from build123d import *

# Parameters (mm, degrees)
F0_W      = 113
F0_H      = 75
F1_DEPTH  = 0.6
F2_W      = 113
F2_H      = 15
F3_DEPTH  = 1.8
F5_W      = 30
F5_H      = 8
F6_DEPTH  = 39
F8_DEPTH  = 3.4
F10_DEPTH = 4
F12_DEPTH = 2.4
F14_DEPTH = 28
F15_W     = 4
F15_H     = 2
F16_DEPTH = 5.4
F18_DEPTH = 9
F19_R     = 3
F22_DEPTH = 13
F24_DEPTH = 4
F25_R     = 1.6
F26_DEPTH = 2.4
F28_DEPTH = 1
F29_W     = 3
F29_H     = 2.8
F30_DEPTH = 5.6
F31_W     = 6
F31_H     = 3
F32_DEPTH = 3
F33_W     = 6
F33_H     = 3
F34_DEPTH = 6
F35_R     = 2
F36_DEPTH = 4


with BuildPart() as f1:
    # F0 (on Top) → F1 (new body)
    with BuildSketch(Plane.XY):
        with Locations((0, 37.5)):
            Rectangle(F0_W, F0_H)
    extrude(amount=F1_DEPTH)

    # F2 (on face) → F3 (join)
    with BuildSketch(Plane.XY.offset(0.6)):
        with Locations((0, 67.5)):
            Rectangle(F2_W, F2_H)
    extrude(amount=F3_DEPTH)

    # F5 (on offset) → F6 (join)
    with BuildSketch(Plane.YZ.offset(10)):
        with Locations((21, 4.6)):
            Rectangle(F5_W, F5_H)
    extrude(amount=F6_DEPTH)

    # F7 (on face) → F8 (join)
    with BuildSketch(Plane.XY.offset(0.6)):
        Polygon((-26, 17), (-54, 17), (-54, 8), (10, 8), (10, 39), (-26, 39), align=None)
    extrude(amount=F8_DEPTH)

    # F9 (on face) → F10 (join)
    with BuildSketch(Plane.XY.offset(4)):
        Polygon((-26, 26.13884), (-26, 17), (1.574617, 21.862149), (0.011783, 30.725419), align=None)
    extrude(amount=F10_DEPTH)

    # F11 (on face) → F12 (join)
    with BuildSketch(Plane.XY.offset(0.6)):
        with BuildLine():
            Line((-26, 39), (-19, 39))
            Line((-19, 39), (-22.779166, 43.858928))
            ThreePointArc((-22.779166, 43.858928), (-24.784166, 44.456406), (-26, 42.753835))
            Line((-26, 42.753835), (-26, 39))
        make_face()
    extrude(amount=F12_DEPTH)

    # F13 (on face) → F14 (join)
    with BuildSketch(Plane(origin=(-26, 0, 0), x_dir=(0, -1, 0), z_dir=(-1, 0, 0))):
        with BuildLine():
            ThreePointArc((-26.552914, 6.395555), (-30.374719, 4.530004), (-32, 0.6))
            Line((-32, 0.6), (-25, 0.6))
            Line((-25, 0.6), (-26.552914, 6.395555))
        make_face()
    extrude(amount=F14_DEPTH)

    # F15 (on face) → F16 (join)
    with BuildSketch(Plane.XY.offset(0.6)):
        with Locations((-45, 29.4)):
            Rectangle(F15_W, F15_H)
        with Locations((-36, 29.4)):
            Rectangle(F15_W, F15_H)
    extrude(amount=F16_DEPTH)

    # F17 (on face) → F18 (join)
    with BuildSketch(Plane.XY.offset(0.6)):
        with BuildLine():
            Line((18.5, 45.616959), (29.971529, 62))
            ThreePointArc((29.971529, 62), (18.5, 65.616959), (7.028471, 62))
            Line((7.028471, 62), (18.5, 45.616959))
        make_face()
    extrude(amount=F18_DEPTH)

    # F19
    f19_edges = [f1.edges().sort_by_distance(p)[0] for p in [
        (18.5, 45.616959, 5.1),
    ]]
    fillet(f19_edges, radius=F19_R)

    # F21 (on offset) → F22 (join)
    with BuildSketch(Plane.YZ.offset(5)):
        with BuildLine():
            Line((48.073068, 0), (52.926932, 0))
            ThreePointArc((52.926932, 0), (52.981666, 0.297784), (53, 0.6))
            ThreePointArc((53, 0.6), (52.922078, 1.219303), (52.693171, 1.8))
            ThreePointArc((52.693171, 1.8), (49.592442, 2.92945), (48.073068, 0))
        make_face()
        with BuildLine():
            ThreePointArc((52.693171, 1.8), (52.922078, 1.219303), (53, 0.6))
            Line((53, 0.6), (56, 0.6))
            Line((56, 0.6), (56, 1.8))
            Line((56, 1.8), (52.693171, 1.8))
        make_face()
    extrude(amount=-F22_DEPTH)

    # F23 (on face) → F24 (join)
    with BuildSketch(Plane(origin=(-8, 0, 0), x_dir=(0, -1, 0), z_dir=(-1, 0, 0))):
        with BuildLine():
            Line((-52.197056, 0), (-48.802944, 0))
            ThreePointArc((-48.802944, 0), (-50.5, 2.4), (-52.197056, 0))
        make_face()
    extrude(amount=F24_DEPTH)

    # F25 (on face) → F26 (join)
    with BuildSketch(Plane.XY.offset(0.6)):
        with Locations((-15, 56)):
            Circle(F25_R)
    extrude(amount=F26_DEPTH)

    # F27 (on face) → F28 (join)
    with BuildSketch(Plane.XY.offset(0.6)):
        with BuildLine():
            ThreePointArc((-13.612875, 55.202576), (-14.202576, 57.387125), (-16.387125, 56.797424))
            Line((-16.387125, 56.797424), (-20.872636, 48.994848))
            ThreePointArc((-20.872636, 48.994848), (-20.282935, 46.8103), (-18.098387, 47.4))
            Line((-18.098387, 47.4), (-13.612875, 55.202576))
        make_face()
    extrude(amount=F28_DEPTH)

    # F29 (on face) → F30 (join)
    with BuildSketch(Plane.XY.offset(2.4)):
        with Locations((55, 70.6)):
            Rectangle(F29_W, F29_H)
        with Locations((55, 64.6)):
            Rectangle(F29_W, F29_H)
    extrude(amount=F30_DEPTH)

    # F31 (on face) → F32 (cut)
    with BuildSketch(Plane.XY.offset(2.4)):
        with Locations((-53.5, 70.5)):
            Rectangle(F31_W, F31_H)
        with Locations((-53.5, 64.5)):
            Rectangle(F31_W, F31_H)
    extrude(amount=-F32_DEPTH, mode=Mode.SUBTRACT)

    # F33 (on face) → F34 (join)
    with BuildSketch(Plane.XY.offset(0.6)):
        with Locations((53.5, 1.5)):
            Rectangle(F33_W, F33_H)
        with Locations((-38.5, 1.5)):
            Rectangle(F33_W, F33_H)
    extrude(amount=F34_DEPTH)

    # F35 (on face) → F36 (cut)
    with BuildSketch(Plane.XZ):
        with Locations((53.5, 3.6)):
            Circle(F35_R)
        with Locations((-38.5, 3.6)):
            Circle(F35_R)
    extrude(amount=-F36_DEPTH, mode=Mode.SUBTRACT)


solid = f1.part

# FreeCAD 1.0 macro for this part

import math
import FreeCAD as App
import Part
import Sketcher
Q = App.Units.Quantity


def edges_at(feature, points):
    """Names of the edges that pass closest to the given points."""
    edges = feature.Shape.Edges
    near = lambda p: min(range(len(edges)), key=lambda i: edges[i].distToShape(Part.Vertex(*p))[0])
    return sorted({f"Edge{near(p) + 1}" for p in points})


def add_polygon(sketch, points):
    """Adds a closed chain of lines whose ends are joined by coincident constraints."""
    first, n = sketch.GeometryCount, len(points)
    for a, b in zip(points, points[1:] + points[:1]):
        sketch.addGeometry(Part.LineSegment(App.Vector(*a, 0), App.Vector(*b, 0)), False)
    for i in range(n):
        sketch.addConstraint(Sketcher.Constraint("Coincident", first + i, 2, first + (i + 1) % n, 1))

doc = App.newDocument("Part")
body = doc.addObject("PartDesign::Body", "Body")

# Sketch on XY plane
sketch1 = doc.addObject("Sketcher::SketchObject", "Sketch")
body.addObject(sketch1)
sketch1.AttachmentSupport = (doc.XY_Plane, [""])
sketch1.MapMode = "FlatFace"
add_polygon(sketch1, [(-56.5, 75), (-56.5, 0), (56.5, 0), (56.5, 75)])  # lines 0-3
sketch1.addConstraint([
    Sketcher.Constraint("Vertical", 0),
    Sketcher.Constraint("Horizontal", 1),
    Sketcher.Constraint("Vertical", 2),
    Sketcher.Constraint("Horizontal", 3),
    Sketcher.Constraint("Symmetric", 0, 2, 1, 2, -1, 1),
    Sketcher.Constraint("DistanceX", 1, 1, 1, 2, 113.0),
    Sketcher.Constraint("DistanceY", 0, 2, 0, 1, 75.0),
])
pad1 = doc.addObject("PartDesign::Pad", "Pad")
body.addObject(pad1)
pad1.Profile = sketch1
pad1.Length = 0.6

# Sketch on XY plane
sketch2 = doc.addObject("Sketcher::SketchObject", "Sketch001")
body.addObject(sketch2)
sketch2.AttachmentSupport = (doc.XY_Plane, [""])
sketch2.MapMode = "FlatFace"
sketch2.AttachmentOffset = App.Placement(App.Vector(0, 0, 0.6), App.Rotation())
add_polygon(sketch2, [(-56.5, 75), (-56.5, 60), (56.5, 60), (56.5, 75)])  # lines 0-3
sketch2.addConstraint([
    Sketcher.Constraint("Vertical", 0),
    Sketcher.Constraint("Horizontal", 1),
    Sketcher.Constraint("Vertical", 2),
    Sketcher.Constraint("Horizontal", 3),
    Sketcher.Constraint("DistanceX", 1, 1, 1, 2, 113.0),
    Sketcher.Constraint("DistanceY", 0, 2, 0, 1, 15.0),
    Sketcher.Constraint("DistanceY", -1, 1, 0, 2, 60.0),
    Sketcher.Constraint("DistanceX", 0, 2, -1, 1, 56.5),
])
pad2 = doc.addObject("PartDesign::Pad", "Pad001")
body.addObject(pad2)
pad2.Profile = sketch2
pad2.Length = 1.8

# Sketch on YZ plane
sketch3 = doc.addObject("Sketcher::SketchObject", "Sketch002")
body.addObject(sketch3)
sketch3.AttachmentSupport = (doc.YZ_Plane, [""])
sketch3.MapMode = "FlatFace"
sketch3.AttachmentOffset = App.Placement(App.Vector(0, 0, 10), App.Rotation())
add_polygon(sketch3, [(6, 8.6), (6, 0.6), (36, 0.6), (36, 8.6)])  # lines 0-3
sketch3.addConstraint([
    Sketcher.Constraint("Vertical", 0),
    Sketcher.Constraint("Horizontal", 1),
    Sketcher.Constraint("Vertical", 2),
    Sketcher.Constraint("Horizontal", 3),
    Sketcher.Constraint("DistanceX", 1, 1, 1, 2, 30.0),
    Sketcher.Constraint("DistanceY", 0, 2, 0, 1, 8.0),
    Sketcher.Constraint("DistanceX", -1, 1, 0, 2, 6.0),
    Sketcher.Constraint("DistanceY", -1, 1, 0, 2, 0.6),
])
pad3 = doc.addObject("PartDesign::Pad", "Pad002")
body.addObject(pad3)
pad3.Profile = sketch3
pad3.Length = 39

# Sketch on XY plane
sketch4 = doc.addObject("Sketcher::SketchObject", "Sketch003")
body.addObject(sketch4)
sketch4.AttachmentSupport = (doc.XY_Plane, [""])
sketch4.MapMode = "FlatFace"
sketch4.AttachmentOffset = App.Placement(App.Vector(0, 0, 0.6), App.Rotation())
add_polygon(sketch4, [(-26, 17), (-54, 17), (-54, 8), (10, 8), (10, 39), (-26, 39)])  # lines 0-5
sketch4.addConstraint([
    Sketcher.Constraint("Horizontal", 0),
    Sketcher.Constraint("Vertical", 1),
    Sketcher.Constraint("Horizontal", 2),
    Sketcher.Constraint("Vertical", 3),
    Sketcher.Constraint("Horizontal", 4),
    Sketcher.Constraint("Vertical", 5),
    Sketcher.Constraint("DistanceX", 0, 2, 0, 1, 28.0),
    Sketcher.Constraint("DistanceX", 2, 1, 2, 2, 64.0),
    Sketcher.Constraint("DistanceY", 1, 2, 1, 1, 9.0),
    Sketcher.Constraint("DistanceY", 3, 1, 3, 2, 31.0),
    Sketcher.Constraint("DistanceX", 0, 2, -1, 1, 54.0),
    Sketcher.Constraint("DistanceY", -1, 1, 0, 2, 17.0),
])
pad4 = doc.addObject("PartDesign::Pad", "Pad003")
body.addObject(pad4)
pad4.Profile = sketch4
pad4.Length = 3.4

# Sketch on XY plane
sketch5 = doc.addObject("Sketcher::SketchObject", "Sketch004")
body.addObject(sketch5)
sketch5.AttachmentSupport = (doc.XY_Plane, [""])
sketch5.MapMode = "FlatFace"
sketch5.AttachmentOffset = App.Placement(App.Vector(0, 0, 4), App.Rotation())
add_polygon(sketch5, [(-26, 26.13884), (-26, 17), (1.574617, 21.862149), (0.011783, 30.725419)])  # lines 0-3
sketch5.addConstraint([
    Sketcher.Constraint("Vertical", 0),
    Sketcher.Constraint("Perpendicular", 1, 2),
    Sketcher.Constraint("Perpendicular", 2, 3),
    Sketcher.Constraint("Angle", 1, Q("10 deg")),
    Sketcher.Constraint("Distance", 1, 28.0),
    Sketcher.Constraint("Distance", 2, 9.0),
    Sketcher.Constraint("DistanceX", 0, 2, -1, 1, 26.0),
    Sketcher.Constraint("DistanceY", -1, 1, 0, 2, 17.0),
])
pad5 = doc.addObject("PartDesign::Pad", "Pad004")
body.addObject(pad5)
pad5.Profile = sketch5
pad5.Length = 4

# Sketch on XY plane
sketch6 = doc.addObject("Sketcher::SketchObject", "Sketch005")
body.addObject(sketch6)
sketch6.AttachmentSupport = (doc.XY_Plane, [""])
sketch6.MapMode = "FlatFace"
sketch6.AttachmentOffset = App.Placement(App.Vector(0, 0, 0.6), App.Rotation())
sketch6.addGeometry([
    Part.LineSegment(App.Vector(-26, 39, 0), App.Vector(-19, 39, 0)),
    Part.LineSegment(App.Vector(-19, 39, 0), App.Vector(-22.779166, 43.858928, 0)),
    Part.ArcOfCircle(Part.Circle(App.Vector(-24.2, 42.753834, 0), App.Vector(0, 0, 1), 1.8), math.radians(37.875005), math.radians(179.999975)),
    Part.LineSegment(App.Vector(-26, 42.753835, 0), App.Vector(-26, 39, 0)),
], False)
sketch6.addConstraint([
    Sketcher.Constraint("Coincident", 0, 2, 1, 1),
    Sketcher.Constraint("Tangent", 1, 2, 2, 1),
    Sketcher.Constraint("Tangent", 2, 2, 3, 1),
    Sketcher.Constraint("Coincident", 3, 2, 0, 1),
    Sketcher.Constraint("Horizontal", 0),
    Sketcher.Constraint("Vertical", 3),
    Sketcher.Constraint("Radius", 2, 1.8),
    Sketcher.Constraint("DistanceX", 0, 1, 0, 2, 7.0),
    Sketcher.Constraint("DistanceX", 0, 2, -1, 1, 19.0),
    Sketcher.Constraint("DistanceY", -1, 1, 0, 2, 39.0),
    Sketcher.Constraint("Distance", 1, 6.155589),
])
pad6 = doc.addObject("PartDesign::Pad", "Pad005")
body.addObject(pad6)
pad6.Profile = sketch6
pad6.Length = 2.4

# Sketch on YZ plane
sketch7 = doc.addObject("Sketcher::SketchObject", "Sketch006")
body.addObject(sketch7)
sketch7.AttachmentSupport = (doc.YZ_Plane, [""])
sketch7.MapMode = "FlatFace"
sketch7.AttachmentOffset = App.Placement(App.Vector(0, 0, -26), App.Rotation())
sketch7.addGeometry([
    Part.ArcOfCircle(Part.Circle(App.Vector(26.002677, 0.42084, 0), App.Vector(0, 0, 1), 5.999999), math.radians(1.711109), math.radians(84.738228)),
    Part.LineSegment(App.Vector(32, 0.6, 0), App.Vector(25, 0.6, 0)),
    Part.LineSegment(App.Vector(25, 0.6, 0), App.Vector(26.552914, 6.395555, 0)),
], False)
sketch7.addConstraint([
    Sketcher.Constraint("Coincident", 0, 1, 1, 1),
    Sketcher.Constraint("Coincident", 1, 2, 2, 1),
    Sketcher.Constraint("Coincident", 2, 2, 0, 2),
    Sketcher.Constraint("Horizontal", 1),
    Sketcher.Constraint("Radius", 0, 5.999999),
    Sketcher.Constraint("DistanceX", 1, 2, 1, 1, 7.0),
    Sketcher.Constraint("Angle", 2, Q("75.000003 deg")),
    Sketcher.Constraint("Distance", 2, 6.0),
    Sketcher.Constraint("DistanceX", -1, 1, 0, 1, 32.0),
    Sketcher.Constraint("DistanceY", -1, 1, 0, 1, 0.6),
])
pad7 = doc.addObject("PartDesign::Pad", "Pad006")
body.addObject(pad7)
pad7.Profile = sketch7
pad7.Length = 28
pad7.Reversed = True

# Sketch on XY plane
sketch8 = doc.addObject("Sketcher::SketchObject", "Sketch007")
body.addObject(sketch8)
sketch8.AttachmentSupport = (doc.XY_Plane, [""])
sketch8.MapMode = "FlatFace"
sketch8.AttachmentOffset = App.Placement(App.Vector(0, 0, 0.6), App.Rotation())
add_polygon(sketch8, [(-47, 30.4), (-47, 28.4), (-43, 28.4), (-43, 30.4)])  # lines 0-3
add_polygon(sketch8, [(-38, 30.4), (-38, 28.4), (-34, 28.4), (-34, 30.4)])  # lines 4-7
sketch8.addConstraint([
    Sketcher.Constraint("Vertical", 0),
    Sketcher.Constraint("Horizontal", 1),
    Sketcher.Constraint("Vertical", 2),
    Sketcher.Constraint("Horizontal", 3),
    Sketcher.Constraint("Vertical", 4),
    Sketcher.Constraint("Horizontal", 5),
    Sketcher.Constraint("Vertical", 6),
    Sketcher.Constraint("Horizontal", 7),
    Sketcher.Constraint("Horizontal", 1, 2, 4, 2),
    Sketcher.Constraint("Horizontal", 3, 2, 6, 2),
    Sketcher.Constraint("Equal", 3, 5),
    Sketcher.Constraint("DistanceX", 1, 1, 1, 2, 4.0),
    Sketcher.Constraint("DistanceY", 0, 2, 0, 1, 2.0),
    Sketcher.Constraint("DistanceX", 0, 2, -1, 1, 47.0),
    Sketcher.Constraint("DistanceX", 4, 2, -1, 1, 38.0),
    Sketcher.Constraint("DistanceY", -1, 1, 0, 2, 28.4),
])
pad8 = doc.addObject("PartDesign::Pad", "Pad007")
body.addObject(pad8)
pad8.Profile = sketch8
pad8.Length = 5.4

# Sketch on XY plane
sketch9 = doc.addObject("Sketcher::SketchObject", "Sketch008")
body.addObject(sketch9)
sketch9.AttachmentSupport = (doc.XY_Plane, [""])
sketch9.MapMode = "FlatFace"
sketch9.AttachmentOffset = App.Placement(App.Vector(0, 0, 0.6), App.Rotation())
sketch9.addGeometry([
    Part.LineSegment(App.Vector(18.5, 45.616959, 0), App.Vector(29.971529, 62, 0)),
    Part.ArcOfCircle(Part.Circle(App.Vector(18.5, 45.616958, 0), App.Vector(0, 0, 1), 20.000001), math.radians(55.000002), math.radians(124.999998)),
    Part.LineSegment(App.Vector(7.028471, 62, 0), App.Vector(18.5, 45.616959, 0)),
], False)
sketch9.addConstraint([
    Sketcher.Constraint("Coincident", 0, 2, 1, 1),
    Sketcher.Constraint("Coincident", 1, 2, 2, 1),
    Sketcher.Constraint("Coincident", 2, 2, 0, 1),
    Sketcher.Constraint("Coincident", 2, 2, 1, 3),
    Sketcher.Constraint("Horizontal", 0, 2, 1, 2),
    Sketcher.Constraint("Radius", 1, 20.000001),
    Sketcher.Constraint("Angle", 0, Q("55 deg")),
    Sketcher.Constraint("DistanceY", -1, 1, 0, 2, 62.0),
    Sketcher.Constraint("DistanceX", -1, 1, 1, 3, 18.5),
])
pad9 = doc.addObject("PartDesign::Pad", "Pad008")
body.addObject(pad9)
pad9.Profile = sketch9
pad9.Length = 9
doc.recompute()

fillet = doc.addObject("PartDesign::Fillet", "Fillet")
body.addObject(fillet)
fillet.Base = (pad9, edges_at(pad9, [(18.5, 45.617, 5.1)]))
fillet.Radius = 3

# Sketch on YZ plane
sketch10 = doc.addObject("Sketcher::SketchObject", "Sketch009")
body.addObject(sketch10)
sketch10.AttachmentSupport = (doc.YZ_Plane, [""])
sketch10.MapMode = "FlatFace"
sketch10.AttachmentOffset = App.Placement(App.Vector(0, 0, 5), App.Rotation())
sketch10.addGeometry([
    Part.LineSegment(App.Vector(48.073068, 0, 0), App.Vector(52.926932, 0, 0)),  # 0
    Part.ArcOfCircle(Part.Circle(App.Vector(50.500032, 0.599997, 0), App.Vector(0, 0, 1), 2.499968), math.radians(-13.886651), math.radians(0.000069)),  # 1
    Part.LineSegment(App.Vector(53, 0.6, 0), App.Vector(56, 0.6, 0)),  # 2
    Part.LineSegment(App.Vector(56, 0.6, 0), App.Vector(56, 1.8, 0)),  # 3
    Part.LineSegment(App.Vector(56, 1.8, 0), App.Vector(52.693171, 1.8, 0)),  # 4
    Part.ArcOfCircle(Part.Circle(App.Vector(50.5, 0.6, 0), App.Vector(0, 0, 1), 2.5), math.radians(28.685405), math.radians(193.886541)),  # 5
], False)
sketch10.addConstraint([
    Sketcher.Constraint("Coincident", 0, 2, 1, 1),
    Sketcher.Constraint("Coincident", 1, 2, 2, 1),
    Sketcher.Constraint("Coincident", 2, 2, 3, 1),
    Sketcher.Constraint("Coincident", 3, 2, 4, 1),
    Sketcher.Constraint("Coincident", 4, 2, 5, 1),
    Sketcher.Constraint("Coincident", 5, 2, 0, 1),
    Sketcher.Constraint("Horizontal", 0),
    Sketcher.Constraint("Horizontal", 2),
    Sketcher.Constraint("Vertical", 3),
    Sketcher.Constraint("Horizontal", 4),
    Sketcher.Constraint("PointOnObject", 0, 2, -1),
    Sketcher.Constraint("Horizontal", 5, 3, 1, 2),
    Sketcher.Constraint("Radius", 5, 2.5),
    Sketcher.Constraint("DistanceX", 2, 1, 2, 2, 3.0),
    Sketcher.Constraint("DistanceY", 3, 1, 3, 2, 1.2),
    Sketcher.Constraint("DistanceX", -1, 1, 1, 2, 53.0),
    Sketcher.Constraint("DistanceX", -1, 1, 5, 3, 50.5),
    Sketcher.Constraint("DistanceY", -1, 1, 5, 3, 0.6),
    Sketcher.Constraint("Radius", 1, 2.499968),
    Sketcher.Constraint("DistanceX", 1, 3, 0, 2, 2.4269),
])
pad10 = doc.addObject("PartDesign::Pad", "Pad009")
body.addObject(pad10)
pad10.Profile = sketch10
pad10.Length = 13
pad10.Reversed = True

# Sketch on YZ plane
sketch11 = doc.addObject("Sketcher::SketchObject", "Sketch010")
body.addObject(sketch11)
sketch11.AttachmentSupport = (doc.YZ_Plane, [""])
sketch11.MapMode = "FlatFace"
sketch11.AttachmentOffset = App.Placement(App.Vector(0, 0, -8), App.Rotation())
sketch11.addGeometry([
    Part.LineSegment(App.Vector(52.197056, 0, 0), App.Vector(48.802944, 0, 0)),
    Part.ArcOfCircle(Part.Circle(App.Vector(50.5, 0.6, 0), App.Vector(0, 0, 1), 1.8), math.radians(-19.471229), math.radians(199.471229)),
], False)
sketch11.addConstraint([
    Sketcher.Constraint("Coincident", 0, 1, 1, 1),
    Sketcher.Constraint("Coincident", 1, 2, 0, 2),
    Sketcher.Constraint("Horizontal", 0),
    Sketcher.Constraint("PointOnObject", 0, 1, -1),
    Sketcher.Constraint("Radius", 1, 1.8),
    Sketcher.Constraint("DistanceX", -1, 1, 1, 3, 50.5),
    Sketcher.Constraint("DistanceY", -1, 1, 1, 3, 0.6),
])
pad11 = doc.addObject("PartDesign::Pad", "Pad010")
body.addObject(pad11)
pad11.Profile = sketch11
pad11.Length = 4
pad11.Reversed = True

# Sketch on XY plane
sketch12 = doc.addObject("Sketcher::SketchObject", "Sketch011")
body.addObject(sketch12)
sketch12.AttachmentSupport = (doc.XY_Plane, [""])
sketch12.MapMode = "FlatFace"
sketch12.AttachmentOffset = App.Placement(App.Vector(0, 0, 0.6), App.Rotation())
sketch12.addGeometry(Part.Circle(App.Vector(-15, 56, 0), App.Vector(0, 0, 1), 1.6), False)
sketch12.addConstraint([
    Sketcher.Constraint("Diameter", 0, 3.2),
    Sketcher.Constraint("DistanceX", 0, 3, -1, 1, 15.0),
    Sketcher.Constraint("DistanceY", -1, 1, 0, 3, 56.0),
])
pad12 = doc.addObject("PartDesign::Pad", "Pad011")
body.addObject(pad12)
pad12.Profile = sketch12
pad12.Length = 2.4

# Sketch on XY plane
sketch13 = doc.addObject("Sketcher::SketchObject", "Sketch012")
body.addObject(sketch13)
sketch13.AttachmentSupport = (doc.XY_Plane, [""])
sketch13.MapMode = "FlatFace"
sketch13.AttachmentOffset = App.Placement(App.Vector(0, 0, 0.6), App.Rotation())
sketch13.addGeometry([
    Part.ArcOfCircle(Part.Circle(App.Vector(-15, 56, 0), App.Vector(0, 0, 1), 1.6), math.radians(-29.893535), math.radians(150.106465)),
    Part.LineSegment(App.Vector(-16.387125, 56.797424, 0), App.Vector(-20.872636, 48.994848, 0)),
    Part.ArcOfCircle(Part.Circle(App.Vector(-19.485511, 48.197425, 0), App.Vector(0, 0, 1), 1.6), math.radians(150.10648), math.radians(330.106431)),
    Part.LineSegment(App.Vector(-18.098387, 47.4, 0), App.Vector(-13.612875, 55.202576, 0)),
], False)
sketch13.addConstraint([
    Sketcher.Constraint("Tangent", 0, 2, 1, 1),
    Sketcher.Constraint("Tangent", 1, 2, 2, 1),
    Sketcher.Constraint("Tangent", 2, 2, 3, 1),
    Sketcher.Constraint("Tangent", 3, 2, 0, 1),
    Sketcher.Constraint("Equal", 0, 2),
    Sketcher.Constraint("Radius", 0, 1.6),
    Sketcher.Constraint("Distance", 1, 9.0),
    Sketcher.Constraint("DistanceX", 0, 3, -1, 1, 15.0),
    Sketcher.Constraint("DistanceY", -1, 1, 0, 3, 56.0),
    Sketcher.Constraint("DistanceY", -1, 1, 2, 2, 47.4),
])
pad13 = doc.addObject("PartDesign::Pad", "Pad012")
body.addObject(pad13)
pad13.Profile = sketch13
pad13.Length = 1

# Sketch on XY plane
sketch14 = doc.addObject("Sketcher::SketchObject", "Sketch013")
body.addObject(sketch14)
sketch14.AttachmentSupport = (doc.XY_Plane, [""])
sketch14.MapMode = "FlatFace"
sketch14.AttachmentOffset = App.Placement(App.Vector(0, 0, 2.4), App.Rotation())
add_polygon(sketch14, [(53.5, 72), (53.5, 69.2), (56.5, 69.2), (56.5, 72)])  # lines 0-3
add_polygon(sketch14, [(53.5, 66), (53.5, 63.2), (56.5, 63.2), (56.5, 66)])  # lines 4-7
sketch14.addConstraint([
    Sketcher.Constraint("Vertical", 0),
    Sketcher.Constraint("Horizontal", 1),
    Sketcher.Constraint("Vertical", 2),
    Sketcher.Constraint("Horizontal", 3),
    Sketcher.Constraint("Vertical", 4),
    Sketcher.Constraint("Horizontal", 5),
    Sketcher.Constraint("Vertical", 6),
    Sketcher.Constraint("Horizontal", 7),
    Sketcher.Constraint("Vertical", 3, 2, 4, 2),
    Sketcher.Constraint("Vertical", 2, 2, 5, 2),
    Sketcher.Constraint("Equal", 2, 4),
    Sketcher.Constraint("DistanceX", 1, 1, 1, 2, 3.0),
    Sketcher.Constraint("DistanceY", 0, 2, 0, 1, 2.8),
    Sketcher.Constraint("DistanceY", -1, 1, 2, 2, 72.0),
    Sketcher.Constraint("DistanceY", -1, 1, 6, 2, 66.0),
    Sketcher.Constraint("DistanceX", -1, 1, 0, 2, 53.5),
])
pad14 = doc.addObject("PartDesign::Pad", "Pad013")
body.addObject(pad14)
pad14.Profile = sketch14
pad14.Length = 5.6

# Sketch on XY plane
sketch15 = doc.addObject("Sketcher::SketchObject", "Sketch014")
body.addObject(sketch15)
sketch15.AttachmentSupport = (doc.XY_Plane, [""])
sketch15.MapMode = "FlatFace"
sketch15.AttachmentOffset = App.Placement(App.Vector(0, 0, 2.4), App.Rotation())
add_polygon(sketch15, [(-56.5, 72), (-56.5, 69), (-50.5, 69), (-50.5, 72)])  # lines 0-3
add_polygon(sketch15, [(-56.5, 66), (-56.5, 63), (-50.5, 63), (-50.5, 66)])  # lines 4-7
sketch15.addConstraint([
    Sketcher.Constraint("Vertical", 0),
    Sketcher.Constraint("Horizontal", 1),
    Sketcher.Constraint("Vertical", 2),
    Sketcher.Constraint("Horizontal", 3),
    Sketcher.Constraint("Vertical", 4),
    Sketcher.Constraint("Horizontal", 5),
    Sketcher.Constraint("Vertical", 6),
    Sketcher.Constraint("Horizontal", 7),
    Sketcher.Constraint("Vertical", 3, 2, 4, 2),
    Sketcher.Constraint("Vertical", 2, 2, 5, 2),
    Sketcher.Constraint("Equal", 2, 4),
    Sketcher.Constraint("DistanceX", 1, 1, 1, 2, 6.0),
    Sketcher.Constraint("DistanceY", 0, 2, 0, 1, 3.0),
    Sketcher.Constraint("DistanceY", -1, 1, 0, 2, 69.0),
    Sketcher.Constraint("DistanceY", -1, 1, 4, 2, 63.0),
    Sketcher.Constraint("DistanceX", 0, 2, -1, 1, 56.5),
])
pocket1 = doc.addObject("PartDesign::Pocket", "Pocket")
body.addObject(pocket1)
pocket1.Profile = sketch15
pocket1.Length = 3

# Sketch on XY plane
sketch16 = doc.addObject("Sketcher::SketchObject", "Sketch015")
body.addObject(sketch16)
sketch16.AttachmentSupport = (doc.XY_Plane, [""])
sketch16.MapMode = "FlatFace"
sketch16.AttachmentOffset = App.Placement(App.Vector(0, 0, 0.6), App.Rotation())
add_polygon(sketch16, [(50.5, 3), (50.5, 0), (56.5, 0), (56.5, 3)])  # lines 0-3
add_polygon(sketch16, [(-41.5, 3), (-41.5, 0), (-35.5, 0), (-35.5, 3)])  # lines 4-7
sketch16.addConstraint([
    Sketcher.Constraint("Vertical", 0),
    Sketcher.Constraint("Horizontal", 1),
    Sketcher.Constraint("Vertical", 2),
    Sketcher.Constraint("Horizontal", 3),
    Sketcher.Constraint("Vertical", 4),
    Sketcher.Constraint("Horizontal", 5),
    Sketcher.Constraint("Vertical", 6),
    Sketcher.Constraint("Horizontal", 7),
    Sketcher.Constraint("PointOnObject", 0, 2, -1),
    Sketcher.Constraint("PointOnObject", 4, 2, -1),
    Sketcher.Constraint("Horizontal", 3, 2, 6, 2),
    Sketcher.Constraint("Equal", 3, 5),
    Sketcher.Constraint("DistanceX", 1, 1, 1, 2, 6.0),
    Sketcher.Constraint("DistanceY", 0, 2, 0, 1, 3.0),
    Sketcher.Constraint("DistanceX", 4, 2, 0, 2, 92.0),
    Sketcher.Constraint("DistanceX", -1, 1, 0, 2, 50.5),
])
pad15 = doc.addObject("PartDesign::Pad", "Pad014")
body.addObject(pad15)
pad15.Profile = sketch16
pad15.Length = 6

# Sketch on XZ plane
sketch17 = doc.addObject("Sketcher::SketchObject", "Sketch016")
body.addObject(sketch17)
sketch17.AttachmentSupport = (doc.XZ_Plane, [""])
sketch17.MapMode = "FlatFace"
sketch17.addGeometry([
    Part.Circle(App.Vector(53.5, 3.6, 0), App.Vector(0, 0, 1), 2),
    Part.Circle(App.Vector(-38.5, 3.6, 0), App.Vector(0, 0, 1), 2),
], False)
sketch17.addConstraint([
    Sketcher.Constraint("Equal", 0, 1),
    Sketcher.Constraint("Horizontal", 0, 3, 1, 3),
    Sketcher.Constraint("Diameter", 0, 4.0),
    Sketcher.Constraint("DistanceX", 1, 3, 0, 3, 92.0),
    Sketcher.Constraint("DistanceX", -1, 1, 0, 3, 53.5),
    Sketcher.Constraint("DistanceY", -1, 1, 0, 3, 3.6),
])
pocket2 = doc.addObject("PartDesign::Pocket", "Pocket001")
body.addObject(pocket2)
pocket2.Profile = sketch17
pocket2.Length = 4

doc.recompute()
